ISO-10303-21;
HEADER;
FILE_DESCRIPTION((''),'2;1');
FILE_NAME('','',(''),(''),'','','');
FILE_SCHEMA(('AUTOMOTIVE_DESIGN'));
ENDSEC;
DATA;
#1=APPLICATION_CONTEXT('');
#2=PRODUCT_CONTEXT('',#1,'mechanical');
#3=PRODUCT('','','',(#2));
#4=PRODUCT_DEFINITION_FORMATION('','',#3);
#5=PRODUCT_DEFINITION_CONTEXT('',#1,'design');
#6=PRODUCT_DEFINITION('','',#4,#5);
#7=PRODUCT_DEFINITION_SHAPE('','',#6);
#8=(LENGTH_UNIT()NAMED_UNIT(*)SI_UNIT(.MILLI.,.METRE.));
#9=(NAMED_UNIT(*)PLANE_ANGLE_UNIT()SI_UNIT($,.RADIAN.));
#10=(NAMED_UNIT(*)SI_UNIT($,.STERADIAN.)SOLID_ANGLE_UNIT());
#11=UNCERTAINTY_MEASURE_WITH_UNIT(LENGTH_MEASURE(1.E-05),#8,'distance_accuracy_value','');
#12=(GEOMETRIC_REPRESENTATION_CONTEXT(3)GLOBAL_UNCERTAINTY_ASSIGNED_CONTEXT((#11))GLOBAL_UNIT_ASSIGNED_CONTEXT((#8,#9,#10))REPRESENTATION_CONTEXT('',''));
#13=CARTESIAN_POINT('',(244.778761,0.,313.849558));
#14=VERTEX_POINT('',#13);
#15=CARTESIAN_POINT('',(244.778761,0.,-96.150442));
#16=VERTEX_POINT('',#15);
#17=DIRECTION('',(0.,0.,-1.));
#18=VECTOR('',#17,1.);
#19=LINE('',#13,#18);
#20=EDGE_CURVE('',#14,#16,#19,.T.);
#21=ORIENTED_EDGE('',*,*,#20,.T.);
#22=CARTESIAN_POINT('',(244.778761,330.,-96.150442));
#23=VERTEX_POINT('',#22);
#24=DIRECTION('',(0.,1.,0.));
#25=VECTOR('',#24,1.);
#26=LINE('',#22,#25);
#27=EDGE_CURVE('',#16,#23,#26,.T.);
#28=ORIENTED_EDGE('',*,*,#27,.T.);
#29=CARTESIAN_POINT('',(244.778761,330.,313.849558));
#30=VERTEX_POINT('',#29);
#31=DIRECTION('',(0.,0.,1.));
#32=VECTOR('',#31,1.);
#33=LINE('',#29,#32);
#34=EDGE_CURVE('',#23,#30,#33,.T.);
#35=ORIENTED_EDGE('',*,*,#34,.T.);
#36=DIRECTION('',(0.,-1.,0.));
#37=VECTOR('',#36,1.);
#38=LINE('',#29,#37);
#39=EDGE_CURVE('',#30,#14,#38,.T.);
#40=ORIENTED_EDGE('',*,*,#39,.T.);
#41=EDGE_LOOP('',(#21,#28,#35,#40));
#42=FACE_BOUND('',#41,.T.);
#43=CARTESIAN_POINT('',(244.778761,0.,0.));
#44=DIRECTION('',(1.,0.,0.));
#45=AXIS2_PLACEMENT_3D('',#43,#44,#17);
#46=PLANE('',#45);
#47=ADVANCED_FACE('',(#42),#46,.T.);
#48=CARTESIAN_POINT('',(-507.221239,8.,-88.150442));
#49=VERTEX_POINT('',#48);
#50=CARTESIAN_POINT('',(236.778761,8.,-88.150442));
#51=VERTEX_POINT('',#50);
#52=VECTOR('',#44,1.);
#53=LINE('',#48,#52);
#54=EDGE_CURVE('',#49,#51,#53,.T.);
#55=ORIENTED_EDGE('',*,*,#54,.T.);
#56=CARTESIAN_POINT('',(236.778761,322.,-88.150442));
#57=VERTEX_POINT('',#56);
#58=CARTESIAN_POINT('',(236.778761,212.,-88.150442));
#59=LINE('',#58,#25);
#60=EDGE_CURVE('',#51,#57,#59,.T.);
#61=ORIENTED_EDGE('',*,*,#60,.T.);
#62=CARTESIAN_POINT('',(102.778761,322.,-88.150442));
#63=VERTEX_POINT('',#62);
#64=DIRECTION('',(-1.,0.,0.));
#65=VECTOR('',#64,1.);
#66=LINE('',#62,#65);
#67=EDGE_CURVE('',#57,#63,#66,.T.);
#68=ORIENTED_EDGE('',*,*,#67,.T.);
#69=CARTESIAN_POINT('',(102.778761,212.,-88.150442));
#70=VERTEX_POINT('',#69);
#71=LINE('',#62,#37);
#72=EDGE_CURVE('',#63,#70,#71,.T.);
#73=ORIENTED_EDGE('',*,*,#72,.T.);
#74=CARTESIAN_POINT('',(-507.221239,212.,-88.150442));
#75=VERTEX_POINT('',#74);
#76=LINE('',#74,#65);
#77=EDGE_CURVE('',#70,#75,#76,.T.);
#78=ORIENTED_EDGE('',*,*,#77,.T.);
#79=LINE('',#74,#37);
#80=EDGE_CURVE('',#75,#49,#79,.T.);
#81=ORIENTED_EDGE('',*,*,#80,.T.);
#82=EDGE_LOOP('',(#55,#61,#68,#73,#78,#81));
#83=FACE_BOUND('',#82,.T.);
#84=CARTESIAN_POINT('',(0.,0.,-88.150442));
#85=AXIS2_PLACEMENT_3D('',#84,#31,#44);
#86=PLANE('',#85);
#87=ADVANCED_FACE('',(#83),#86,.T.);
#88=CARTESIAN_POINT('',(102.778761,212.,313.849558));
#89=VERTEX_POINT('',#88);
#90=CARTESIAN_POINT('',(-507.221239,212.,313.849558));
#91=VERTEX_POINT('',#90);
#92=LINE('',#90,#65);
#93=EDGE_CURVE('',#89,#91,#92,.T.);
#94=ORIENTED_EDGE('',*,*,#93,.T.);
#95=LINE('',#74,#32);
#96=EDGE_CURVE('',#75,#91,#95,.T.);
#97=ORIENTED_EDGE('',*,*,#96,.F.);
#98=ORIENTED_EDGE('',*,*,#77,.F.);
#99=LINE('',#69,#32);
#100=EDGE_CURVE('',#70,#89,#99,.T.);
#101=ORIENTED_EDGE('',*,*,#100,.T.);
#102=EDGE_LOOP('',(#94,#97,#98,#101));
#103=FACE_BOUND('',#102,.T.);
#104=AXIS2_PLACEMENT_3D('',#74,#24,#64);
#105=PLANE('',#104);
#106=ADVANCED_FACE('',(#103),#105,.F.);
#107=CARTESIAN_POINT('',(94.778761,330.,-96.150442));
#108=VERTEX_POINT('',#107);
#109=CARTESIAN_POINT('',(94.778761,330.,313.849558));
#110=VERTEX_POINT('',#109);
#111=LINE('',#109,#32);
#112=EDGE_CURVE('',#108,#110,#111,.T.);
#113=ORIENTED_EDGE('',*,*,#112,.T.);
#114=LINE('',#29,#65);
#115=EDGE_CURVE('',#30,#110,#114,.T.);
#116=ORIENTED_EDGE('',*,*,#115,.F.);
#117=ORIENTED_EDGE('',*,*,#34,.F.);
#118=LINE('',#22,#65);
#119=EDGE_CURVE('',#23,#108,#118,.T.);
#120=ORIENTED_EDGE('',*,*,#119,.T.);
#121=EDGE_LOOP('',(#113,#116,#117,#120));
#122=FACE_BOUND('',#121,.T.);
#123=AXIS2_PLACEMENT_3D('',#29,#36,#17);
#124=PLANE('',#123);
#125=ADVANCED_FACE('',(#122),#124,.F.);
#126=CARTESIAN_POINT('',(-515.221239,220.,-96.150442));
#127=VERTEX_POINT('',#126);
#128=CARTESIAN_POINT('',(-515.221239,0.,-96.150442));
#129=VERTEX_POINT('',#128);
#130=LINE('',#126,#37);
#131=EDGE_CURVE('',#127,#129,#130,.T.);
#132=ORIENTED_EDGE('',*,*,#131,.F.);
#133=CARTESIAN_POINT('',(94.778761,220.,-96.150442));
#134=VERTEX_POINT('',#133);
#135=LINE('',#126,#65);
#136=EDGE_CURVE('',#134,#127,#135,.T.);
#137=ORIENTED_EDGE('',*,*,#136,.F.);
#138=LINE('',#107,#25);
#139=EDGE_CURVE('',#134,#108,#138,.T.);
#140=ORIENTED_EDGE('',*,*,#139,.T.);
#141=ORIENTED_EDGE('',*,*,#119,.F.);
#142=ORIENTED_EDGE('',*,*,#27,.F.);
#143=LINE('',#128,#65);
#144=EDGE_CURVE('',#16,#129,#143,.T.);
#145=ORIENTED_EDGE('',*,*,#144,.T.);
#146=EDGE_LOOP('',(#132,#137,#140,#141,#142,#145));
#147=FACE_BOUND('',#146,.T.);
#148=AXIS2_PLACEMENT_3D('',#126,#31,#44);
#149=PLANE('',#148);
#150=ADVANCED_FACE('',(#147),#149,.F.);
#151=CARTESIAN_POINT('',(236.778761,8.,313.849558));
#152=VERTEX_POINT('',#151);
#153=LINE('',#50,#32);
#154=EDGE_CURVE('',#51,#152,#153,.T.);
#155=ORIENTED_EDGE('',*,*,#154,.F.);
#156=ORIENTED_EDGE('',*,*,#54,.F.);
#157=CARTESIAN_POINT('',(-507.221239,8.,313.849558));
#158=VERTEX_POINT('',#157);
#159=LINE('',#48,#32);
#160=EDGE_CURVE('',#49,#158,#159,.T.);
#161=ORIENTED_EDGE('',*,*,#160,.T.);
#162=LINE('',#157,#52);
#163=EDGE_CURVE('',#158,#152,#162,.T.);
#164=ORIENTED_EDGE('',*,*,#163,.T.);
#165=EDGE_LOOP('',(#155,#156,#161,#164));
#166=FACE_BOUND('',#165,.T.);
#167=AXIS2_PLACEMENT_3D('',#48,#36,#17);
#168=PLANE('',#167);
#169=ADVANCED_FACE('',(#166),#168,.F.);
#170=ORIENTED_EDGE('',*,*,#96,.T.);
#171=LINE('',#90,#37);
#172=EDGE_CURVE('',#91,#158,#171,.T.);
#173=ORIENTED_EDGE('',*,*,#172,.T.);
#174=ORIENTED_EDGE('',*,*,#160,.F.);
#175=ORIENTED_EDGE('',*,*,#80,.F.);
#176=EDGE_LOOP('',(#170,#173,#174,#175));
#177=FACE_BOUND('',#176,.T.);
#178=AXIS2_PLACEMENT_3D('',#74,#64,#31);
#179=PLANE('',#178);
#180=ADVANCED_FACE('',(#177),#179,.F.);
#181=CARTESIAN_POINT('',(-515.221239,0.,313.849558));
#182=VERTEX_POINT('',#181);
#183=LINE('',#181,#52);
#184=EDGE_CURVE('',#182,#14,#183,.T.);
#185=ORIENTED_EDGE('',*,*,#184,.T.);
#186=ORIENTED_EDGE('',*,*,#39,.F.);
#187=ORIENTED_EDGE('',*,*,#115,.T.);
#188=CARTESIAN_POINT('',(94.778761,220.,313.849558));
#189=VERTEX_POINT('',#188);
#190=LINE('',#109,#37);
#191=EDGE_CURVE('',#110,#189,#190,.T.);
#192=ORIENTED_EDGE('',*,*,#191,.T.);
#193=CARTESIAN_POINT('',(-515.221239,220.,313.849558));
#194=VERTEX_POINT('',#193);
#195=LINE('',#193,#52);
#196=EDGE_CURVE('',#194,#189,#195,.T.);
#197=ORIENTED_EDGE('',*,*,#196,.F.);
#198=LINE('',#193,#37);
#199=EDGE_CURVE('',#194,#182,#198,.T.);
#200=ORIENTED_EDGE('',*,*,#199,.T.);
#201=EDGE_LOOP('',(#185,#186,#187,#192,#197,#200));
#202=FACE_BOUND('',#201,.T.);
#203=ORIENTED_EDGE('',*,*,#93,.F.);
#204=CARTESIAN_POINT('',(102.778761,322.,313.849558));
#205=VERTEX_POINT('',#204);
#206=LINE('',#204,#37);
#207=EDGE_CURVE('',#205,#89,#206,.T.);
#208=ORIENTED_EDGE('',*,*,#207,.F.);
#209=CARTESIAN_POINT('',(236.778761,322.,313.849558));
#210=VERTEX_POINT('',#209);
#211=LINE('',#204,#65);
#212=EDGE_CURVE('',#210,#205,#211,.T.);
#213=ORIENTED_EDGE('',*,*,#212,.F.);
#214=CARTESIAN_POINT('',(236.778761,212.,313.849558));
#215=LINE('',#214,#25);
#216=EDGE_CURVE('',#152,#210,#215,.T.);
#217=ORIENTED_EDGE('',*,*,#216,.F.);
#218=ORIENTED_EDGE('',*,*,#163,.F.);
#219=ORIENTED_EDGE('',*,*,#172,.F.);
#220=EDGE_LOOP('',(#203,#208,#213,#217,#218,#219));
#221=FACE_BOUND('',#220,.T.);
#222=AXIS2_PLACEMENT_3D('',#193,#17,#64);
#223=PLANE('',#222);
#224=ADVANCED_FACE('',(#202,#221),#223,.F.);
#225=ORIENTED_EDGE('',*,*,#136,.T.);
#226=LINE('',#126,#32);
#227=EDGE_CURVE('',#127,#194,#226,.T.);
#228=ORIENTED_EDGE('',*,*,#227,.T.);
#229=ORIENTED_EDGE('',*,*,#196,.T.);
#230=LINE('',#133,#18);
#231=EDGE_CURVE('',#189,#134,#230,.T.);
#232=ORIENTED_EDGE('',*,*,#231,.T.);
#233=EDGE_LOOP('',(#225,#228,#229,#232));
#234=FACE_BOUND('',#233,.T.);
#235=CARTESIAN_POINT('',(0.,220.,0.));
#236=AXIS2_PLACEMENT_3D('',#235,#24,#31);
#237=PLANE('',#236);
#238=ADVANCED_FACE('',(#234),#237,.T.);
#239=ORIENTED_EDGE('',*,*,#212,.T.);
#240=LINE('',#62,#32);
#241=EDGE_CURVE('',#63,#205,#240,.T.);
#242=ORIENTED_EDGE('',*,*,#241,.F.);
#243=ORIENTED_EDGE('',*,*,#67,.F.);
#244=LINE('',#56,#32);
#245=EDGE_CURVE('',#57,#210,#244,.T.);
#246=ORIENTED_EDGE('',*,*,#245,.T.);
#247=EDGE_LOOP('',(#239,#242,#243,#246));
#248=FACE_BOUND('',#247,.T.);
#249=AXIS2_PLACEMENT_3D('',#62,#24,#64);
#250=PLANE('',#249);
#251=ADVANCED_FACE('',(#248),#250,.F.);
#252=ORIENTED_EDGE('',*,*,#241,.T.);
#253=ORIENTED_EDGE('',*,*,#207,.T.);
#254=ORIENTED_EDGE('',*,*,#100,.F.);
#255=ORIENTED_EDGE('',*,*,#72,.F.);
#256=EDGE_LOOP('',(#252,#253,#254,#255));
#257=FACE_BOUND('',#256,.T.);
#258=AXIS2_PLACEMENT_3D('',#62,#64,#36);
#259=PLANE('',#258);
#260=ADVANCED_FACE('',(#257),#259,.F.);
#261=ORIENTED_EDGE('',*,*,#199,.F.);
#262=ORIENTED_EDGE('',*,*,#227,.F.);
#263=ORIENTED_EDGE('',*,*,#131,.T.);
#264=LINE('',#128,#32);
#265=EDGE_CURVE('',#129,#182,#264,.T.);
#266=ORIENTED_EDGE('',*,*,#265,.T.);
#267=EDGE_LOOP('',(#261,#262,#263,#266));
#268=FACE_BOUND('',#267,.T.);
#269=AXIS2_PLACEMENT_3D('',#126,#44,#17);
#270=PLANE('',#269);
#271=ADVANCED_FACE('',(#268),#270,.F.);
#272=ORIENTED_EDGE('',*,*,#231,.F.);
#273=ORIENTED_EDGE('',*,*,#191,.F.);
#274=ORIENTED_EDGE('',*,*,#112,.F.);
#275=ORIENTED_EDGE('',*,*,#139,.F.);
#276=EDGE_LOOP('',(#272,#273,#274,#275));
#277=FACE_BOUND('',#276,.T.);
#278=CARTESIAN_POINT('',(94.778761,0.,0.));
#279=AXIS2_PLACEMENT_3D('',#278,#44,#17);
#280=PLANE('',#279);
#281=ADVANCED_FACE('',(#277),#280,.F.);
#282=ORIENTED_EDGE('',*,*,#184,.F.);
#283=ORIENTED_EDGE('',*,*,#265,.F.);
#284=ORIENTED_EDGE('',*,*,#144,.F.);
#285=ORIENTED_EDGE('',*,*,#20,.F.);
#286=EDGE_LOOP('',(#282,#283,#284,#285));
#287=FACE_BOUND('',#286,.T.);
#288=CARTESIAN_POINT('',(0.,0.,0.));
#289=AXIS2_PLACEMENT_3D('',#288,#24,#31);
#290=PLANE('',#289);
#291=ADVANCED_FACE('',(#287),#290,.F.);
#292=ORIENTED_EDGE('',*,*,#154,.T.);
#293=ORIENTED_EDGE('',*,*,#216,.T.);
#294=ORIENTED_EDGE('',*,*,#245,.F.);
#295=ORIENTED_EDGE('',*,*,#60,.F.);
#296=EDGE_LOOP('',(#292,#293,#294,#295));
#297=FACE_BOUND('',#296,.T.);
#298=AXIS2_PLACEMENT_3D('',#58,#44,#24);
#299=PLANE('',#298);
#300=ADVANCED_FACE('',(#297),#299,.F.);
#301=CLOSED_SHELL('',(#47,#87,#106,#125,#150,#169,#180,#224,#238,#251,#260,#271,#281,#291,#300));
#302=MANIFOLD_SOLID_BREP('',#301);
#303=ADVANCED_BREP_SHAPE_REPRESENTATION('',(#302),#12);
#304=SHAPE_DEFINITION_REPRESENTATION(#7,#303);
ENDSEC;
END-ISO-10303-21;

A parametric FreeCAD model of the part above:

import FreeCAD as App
import Part
import Sketcher
from FreeCAD import Vector
Q = App.Units.Quantity


def add_polygon(sketch, points):
    """Adds a closed chain of lines whose ends are joined by coincident constraints."""
    first, n = sketch.GeometryCount, len(points)
    for a, b in zip(points, points[1:] + points[:1]):
        sketch.addGeometry(Part.LineSegment(App.Vector(*a, 0), App.Vector(*b, 0)), False)
    for i in range(n):
        sketch.addConstraint(Sketcher.Constraint("Coincident", first + i, 2, first + (i + 1) % n, 1))

doc = App.newDocument("Part")
body = doc.addObject("PartDesign::Body", "Body")

# Sketch on XZ plane
sketch1 = body.newObject("Sketcher::SketchObject", "Sketch")
sketch1.AttachmentSupport = (doc.getObject("XZ_Plane"), [""])
sketch1.MapMode = "FlatFace"
add_polygon(sketch1, [(-515, -96), (-515, 314), (95, 314), (95, -96)])  # lines 0-3
sketch1.addConstraint([
    Sketcher.Constraint("Vertical", 0),
    Sketcher.Constraint("Horizontal", 1),
    Sketcher.Constraint("Vertical", 2),
    Sketcher.Constraint("Horizontal", 3),
    Sketcher.Constraint("DistanceX", 1, 1, 1, 2, Q("610 mm")),
    Sketcher.Constraint("DistanceY", 0, 1, 0, 2, Q("410 mm")),
    Sketcher.Constraint("DistanceX", 0, 2, -1, 1, Q("515.221239 mm")),
    Sketcher.Constraint("DistanceY", -1, 1, 0, 2, Q("313.849558 mm")),
])
pad1 = body.newObject("PartDesign::Pad", "Pad")
pad1.Profile = sketch1
pad1.Length = 220
pad1.Reversed = True

# Sketch on YZ plane
sketch2 = body.newObject("Sketcher::SketchObject", "Sketch001")
sketch2.AttachmentSupport = (doc.getObject("YZ_Plane"), [""])
sketch2.MapMode = "FlatFace"
sketch2.AttachmentOffset = App.Placement(Vector(0, 0, 94.778761), App.Rotation())
add_polygon(sketch2, [(330, 314), (0, 314), (0, -96), (330, -96)])  # lines 0-3
sketch2.addConstraint([
    Sketcher.Constraint("Horizontal", 0),
    Sketcher.Constraint("Vertical", 1),
    Sketcher.Constraint("Horizontal", 2),
    Sketcher.Constraint("Vertical", 3),
    Sketcher.Constraint("PointOnObject", 0, 2, -2),
    Sketcher.Constraint("DistanceX", 0, 2, 0, 1, Q("330 mm")),
    Sketcher.Constraint("DistanceY", 1, 2, 1, 1, Q("410 mm")),
    Sketcher.Constraint("DistanceY", -1, 1, 0, 2, Q("313.849558 mm")),
])
pad2 = body.newObject("PartDesign::Pad", "Pad001")
pad2.Profile = sketch2
pad2.Length = 150

# Sketch on XY plane
sketch3 = body.newObject("Sketcher::SketchObject", "Sketch002")
sketch3.AttachmentSupport = (doc.getObject("XY_Plane"), [""])
sketch3.MapMode = "FlatFace"
sketch3.AttachmentOffset = App.Placement(Vector(0, 0, 313.849558), App.Rotation())
add_polygon(sketch3, [(-507, 212), (-507, 8), (95, 8), (95, 212)])  # lines 0-3
sketch3.addConstraint([
    Sketcher.Constraint("Vertical", 0),
    Sketcher.Constraint("Horizontal", 1),
    Sketcher.Constraint("Vertical", 2),
    Sketcher.Constraint("Horizontal", 3),
    Sketcher.Constraint("DistanceX", 1, 1, 1, 2, Q("602 mm")),
    Sketcher.Constraint("DistanceY", 0, 2, 0, 1, Q("204 mm")),
    Sketcher.Constraint("DistanceY", -1, 1, 0, 2, Q("8 mm")),
    Sketcher.Constraint("DistanceX", 0, 2, -1, 1, Q("507.221239 mm")),
])
pocket1 = body.newObject("PartDesign::Pocket", "Pocket")
pocket1.Profile = sketch3
pocket1.Length = 402

# Sketch on XY plane
sketch4 = body.newObject("Sketcher::SketchObject", "Sketch003")
sketch4.AttachmentSupport = (doc.getObject("XY_Plane"), [""])
sketch4.MapMode = "FlatFace"
sketch4.AttachmentOffset = App.Placement(Vector(0, 0, 313.849558), App.Rotation())
add_polygon(sketch4, [(95, 212), (95, 8), (237, 8), (237, 212)])  # lines 0-3
sketch4.addConstraint([
    Sketcher.Constraint("Vertical", 0),
    Sketcher.Constraint("Horizontal", 1),
    Sketcher.Constraint("Vertical", 2),
    Sketcher.Constraint("Horizontal", 3),
    Sketcher.Constraint("DistanceX", 1, 1, 1, 2, Q("142 mm")),
    Sketcher.Constraint("DistanceY", 0, 2, 0, 1, Q("204 mm")),
    Sketcher.Constraint("DistanceY", -1, 1, 0, 2, Q("8 mm")),
    Sketcher.Constraint("DistanceX", -1, 1, 0, 2, Q("94.778761 mm")),
])
pocket2 = body.newObject("PartDesign::Pocket", "Pocket001")
pocket2.Profile = sketch4
pocket2.Length = 402

# Sketch on XY plane
sketch5 = body.newObject("Sketcher::SketchObject", "Sketch004")
sketch5.AttachmentSupport = (doc.getObject("XY_Plane"), [""])
sketch5.MapMode = "FlatFace"
sketch5.AttachmentOffset = App.Placement(Vector(0, 0, 313.849558), App.Rotation())
add_polygon(sketch5, [(103, 322), (103, 212), (237, 212), (237, 322)])  # lines 0-3
sketch5.addConstraint([
    Sketcher.Constraint("Vertical", 0),
    Sketcher.Constraint("Horizontal", 1),
    Sketcher.Constraint("Vertical", 2),
    Sketcher.Constraint("Horizontal", 3),
    Sketcher.Constraint("DistanceX", 1, 1, 1, 2, Q("134 mm")),
    Sketcher.Constraint("DistanceY", 0, 2, 0, 1, Q("110 mm")),
    Sketcher.Constraint("DistanceY", -1, 1, 0, 2, Q("212 mm")),
    Sketcher.Constraint("DistanceX", -1, 1, 0, 2, Q("102.778761 mm")),
])
pocket3 = body.newObject("PartDesign::Pocket", "Pocket002")
pocket3.Profile = sketch5
pocket3.Length = 402

doc.recompute()
